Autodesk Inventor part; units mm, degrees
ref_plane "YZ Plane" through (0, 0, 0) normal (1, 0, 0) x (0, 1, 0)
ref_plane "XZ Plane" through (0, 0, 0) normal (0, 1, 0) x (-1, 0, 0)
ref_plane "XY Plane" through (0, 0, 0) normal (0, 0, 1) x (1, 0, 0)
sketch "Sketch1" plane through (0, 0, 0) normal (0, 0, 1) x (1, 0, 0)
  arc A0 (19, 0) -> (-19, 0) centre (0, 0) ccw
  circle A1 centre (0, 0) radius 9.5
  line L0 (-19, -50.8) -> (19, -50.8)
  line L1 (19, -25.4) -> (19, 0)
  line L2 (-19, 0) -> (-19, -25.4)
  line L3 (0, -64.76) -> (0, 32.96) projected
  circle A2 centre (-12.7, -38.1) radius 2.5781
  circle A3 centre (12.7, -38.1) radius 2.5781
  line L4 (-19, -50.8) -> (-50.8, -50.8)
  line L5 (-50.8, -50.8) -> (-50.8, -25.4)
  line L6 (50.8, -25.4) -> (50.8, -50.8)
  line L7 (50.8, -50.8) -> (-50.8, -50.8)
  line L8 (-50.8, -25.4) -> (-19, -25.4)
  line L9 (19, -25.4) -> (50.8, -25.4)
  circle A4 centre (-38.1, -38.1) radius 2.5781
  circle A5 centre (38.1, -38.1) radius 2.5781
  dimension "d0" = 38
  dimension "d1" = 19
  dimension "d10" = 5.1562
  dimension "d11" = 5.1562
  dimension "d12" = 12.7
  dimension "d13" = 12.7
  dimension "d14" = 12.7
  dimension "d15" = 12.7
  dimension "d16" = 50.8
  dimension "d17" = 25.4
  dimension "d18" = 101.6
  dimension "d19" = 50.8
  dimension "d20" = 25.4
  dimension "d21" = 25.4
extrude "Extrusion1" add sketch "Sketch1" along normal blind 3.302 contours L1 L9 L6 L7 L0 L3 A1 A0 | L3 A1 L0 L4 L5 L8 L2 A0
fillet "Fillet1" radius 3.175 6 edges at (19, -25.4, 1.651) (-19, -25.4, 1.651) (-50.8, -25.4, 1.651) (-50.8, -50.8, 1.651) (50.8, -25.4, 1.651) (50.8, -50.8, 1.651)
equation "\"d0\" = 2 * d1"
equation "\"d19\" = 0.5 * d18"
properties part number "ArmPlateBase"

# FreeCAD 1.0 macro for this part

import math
import FreeCAD as App
import Part
import Sketcher

V = App.Vector
Q = App.Units.Quantity


def edges_at(feature, points):
    """Names of the edges that pass closest to the given points."""
    edges = feature.Shape.Edges
    near = lambda p: min(range(len(edges)), key=lambda i: edges[i].distToShape(Part.Vertex(*p))[0])
    return sorted({f"Edge{near(p) + 1}" for p in points})

doc = App.newDocument("Part")
body = doc.addObject("PartDesign::Body", "Body")

# Sketch on XY plane
sketch1 = body.newObject("Sketcher::SketchObject", "Sketch")
sketch1.AttachmentSupport = (doc.getObject("XY_Plane"), [""])
sketch1.MapMode = "FlatFace"
sketch1.addGeometry([
    Part.LineSegment(V(19, -25.4, 0), V(19, 0, 0)),  # 0
    Part.ArcOfCircle(Part.Circle(V(0, 0, 0), V(0, 0, 1), 19), math.radians(0), math.radians(180)),  # 1
    Part.LineSegment(V(-19, 0, 0), V(-19, -25.4, 0)),  # 2
    Part.LineSegment(V(-19, -25.4, 0), V(-50.8, -25.4, 0)),  # 3
    Part.LineSegment(V(-50.8, -25.4, 0), V(-50.8, -50.8, 0)),  # 4
    Part.LineSegment(V(-50.8, -50.8, 0), V(50.8, -50.8, 0)),  # 5
    Part.LineSegment(V(50.8, -50.8, 0), V(50.8, -25.4, 0)),  # 6
    Part.LineSegment(V(50.8, -25.4, 0), V(19, -25.4, 0)),  # 7
    Part.Circle(V(0, 0, 0), V(0, 0, 1), 9.5),  # 8
    Part.Circle(V(12.7, -38.1, 0), V(0, 0, 1), 2.6),  # 9
    Part.Circle(V(38.1, -38.1, 0), V(0, 0, 1), 2.6),  # 10
    Part.Circle(V(-38.1, -38.1, 0), V(0, 0, 1), 2.6),  # 11
    Part.Circle(V(-12.7, -38.1, 0), V(0, 0, 1), 2.6),  # 12
], False)
sketch1.addConstraint([
    Sketcher.Constraint("Tangent", 0, 2, 1, 1),
    Sketcher.Constraint("Tangent", 1, 2, 2, 1),
    Sketcher.Constraint("Coincident", 2, 2, 3, 1),
    Sketcher.Constraint("Coincident", 3, 2, 4, 1),
    Sketcher.Constraint("Coincident", 4, 2, 5, 1),
    Sketcher.Constraint("Coincident", 5, 2, 6, 1),
    Sketcher.Constraint("Coincident", 6, 2, 7, 1),
    Sketcher.Constraint("Coincident", 7, 2, 0, 1),
    Sketcher.Constraint("Vertical", 0),
    Sketcher.Constraint("Vertical", 2),
    Sketcher.Constraint("Horizontal", 3),
    Sketcher.Constraint("Vertical", 4),
    Sketcher.Constraint("Horizontal", 5),
    Sketcher.Constraint("Vertical", 6),
    Sketcher.Constraint("Horizontal", 7),
    Sketcher.Constraint("Coincident", 1, 3, -1, 1),
    Sketcher.Constraint("Coincident", 8, 3, -1, 1),
    Sketcher.Constraint("Equal", 9, 10),
    Sketcher.Constraint("Equal", 10, 11),
    Sketcher.Constraint("Equal", 11, 12),
    Sketcher.Constraint("Symmetric", 10, 3, 11, 3, -2),
    Sketcher.Constraint("Symmetric", 9, 3, 12, 3, -2),
    Sketcher.Constraint("Symmetric", 3, 2, 6, 2, -2),
    Sketcher.Constraint("Horizontal", 9, 3, 10, 3),
    Sketcher.Constraint("Equal", 2, 4),
    Sketcher.Constraint("DistanceX", 5, 1, 5, 2, Q("4 in")),
    Sketcher.Constraint("DistanceY", 0, 1, 0, 2, Q("1 in")),
    Sketcher.Constraint("Diameter", 9, Q("0.203 in")),
    Sketcher.Constraint("DistanceX", 9, 3, 10, 3, Q("1 in")),
    Sketcher.Constraint("DistanceX", 11, 3, 9, 3, Q("2 in")),
    Sketcher.Constraint("DistanceY", 12, 3, 2, 2, Q("0.5 in")),
    Sketcher.Constraint("Diameter", 8, Q("19 mm")),
    Sketcher.Constraint("Radius", 1, Q("19 mm")),
])
pad1 = body.newObject("PartDesign::Pad", "Pad")
pad1.Profile = sketch1
pad1.Length = Q("0.13 in")
doc.recompute()

fillet = body.newObject("PartDesign::Fillet", "Fillet")
fillet.Base = (pad1, edges_at(pad1, [
    (19, -25.4, 1.651),
    (-19, -25.4, 1.651),
    (-50.8, -25.4, 1.651),
    (-50.8, -50.8, 1.651),
    (50.8, -25.4, 1.651),
    (50.8, -50.8, 1.651),
]))
fillet.Radius = Q("0.125 in")

doc.recompute()
